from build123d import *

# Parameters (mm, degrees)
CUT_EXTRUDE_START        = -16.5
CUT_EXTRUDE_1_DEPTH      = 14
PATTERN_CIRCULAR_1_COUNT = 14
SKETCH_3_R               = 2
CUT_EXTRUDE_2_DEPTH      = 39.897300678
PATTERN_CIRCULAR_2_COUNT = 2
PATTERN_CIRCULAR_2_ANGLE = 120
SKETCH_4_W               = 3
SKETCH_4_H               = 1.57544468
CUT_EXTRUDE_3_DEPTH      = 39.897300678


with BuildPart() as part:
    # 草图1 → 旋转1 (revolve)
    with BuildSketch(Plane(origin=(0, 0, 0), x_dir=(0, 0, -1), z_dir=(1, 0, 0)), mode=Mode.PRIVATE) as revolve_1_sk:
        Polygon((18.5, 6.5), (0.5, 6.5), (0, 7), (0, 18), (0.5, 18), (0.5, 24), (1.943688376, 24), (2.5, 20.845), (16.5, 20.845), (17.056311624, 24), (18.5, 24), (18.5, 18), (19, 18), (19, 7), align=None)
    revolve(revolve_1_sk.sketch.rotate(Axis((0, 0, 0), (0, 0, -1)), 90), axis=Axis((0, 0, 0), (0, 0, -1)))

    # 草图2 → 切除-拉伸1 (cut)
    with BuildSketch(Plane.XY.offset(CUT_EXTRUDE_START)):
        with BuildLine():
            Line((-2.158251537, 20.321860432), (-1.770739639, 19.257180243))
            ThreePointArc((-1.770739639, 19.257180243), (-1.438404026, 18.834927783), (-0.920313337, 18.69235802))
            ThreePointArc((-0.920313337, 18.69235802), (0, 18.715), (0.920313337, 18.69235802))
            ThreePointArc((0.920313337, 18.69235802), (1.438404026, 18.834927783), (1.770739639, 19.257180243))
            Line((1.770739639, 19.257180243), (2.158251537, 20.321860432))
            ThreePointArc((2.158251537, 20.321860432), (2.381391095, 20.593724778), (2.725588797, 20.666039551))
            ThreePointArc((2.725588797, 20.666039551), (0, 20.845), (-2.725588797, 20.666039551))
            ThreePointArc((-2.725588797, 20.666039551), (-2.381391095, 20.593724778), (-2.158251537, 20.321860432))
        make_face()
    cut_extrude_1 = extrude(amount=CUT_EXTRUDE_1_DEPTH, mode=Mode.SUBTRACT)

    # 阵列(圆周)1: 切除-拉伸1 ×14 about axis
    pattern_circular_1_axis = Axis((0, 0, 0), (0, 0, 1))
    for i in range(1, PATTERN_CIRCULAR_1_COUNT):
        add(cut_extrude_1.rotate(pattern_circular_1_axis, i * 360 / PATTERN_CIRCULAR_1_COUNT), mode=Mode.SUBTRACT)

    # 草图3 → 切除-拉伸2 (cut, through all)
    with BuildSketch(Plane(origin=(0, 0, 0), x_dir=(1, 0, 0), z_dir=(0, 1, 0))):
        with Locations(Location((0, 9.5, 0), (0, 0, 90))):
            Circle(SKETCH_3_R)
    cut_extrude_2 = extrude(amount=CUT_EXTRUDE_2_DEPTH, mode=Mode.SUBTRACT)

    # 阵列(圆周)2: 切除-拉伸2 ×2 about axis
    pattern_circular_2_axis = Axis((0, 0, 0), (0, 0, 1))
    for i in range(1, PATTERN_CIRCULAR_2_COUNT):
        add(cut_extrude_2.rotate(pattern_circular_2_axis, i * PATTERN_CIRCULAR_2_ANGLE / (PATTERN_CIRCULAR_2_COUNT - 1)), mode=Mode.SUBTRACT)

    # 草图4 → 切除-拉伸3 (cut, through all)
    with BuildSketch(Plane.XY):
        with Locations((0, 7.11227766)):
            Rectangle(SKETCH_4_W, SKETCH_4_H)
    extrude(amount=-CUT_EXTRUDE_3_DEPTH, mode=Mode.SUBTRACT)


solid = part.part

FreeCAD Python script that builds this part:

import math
import FreeCAD as App
import Part
import Sketcher

V = App.Vector
Q = App.Units.Quantity


def add_polygon(sketch, points):
    """Adds a closed chain of lines whose ends are joined by coincident constraints."""
    first, n = sketch.GeometryCount, len(points)
    for a, b in zip(points, points[1:] + points[:1]):
        sketch.addGeometry(Part.LineSegment(App.Vector(*a, 0), App.Vector(*b, 0)), False)
    for i in range(n):
        sketch.addConstraint(Sketcher.Constraint("Coincident", first + i, 2, first + (i + 1) % n, 1))

doc = App.newDocument("Part")
body = doc.addObject("PartDesign::Body", "Body")

# Sketch on YZ plane
sketch1 = body.newObject("Sketcher::SketchObject", "Sketch")
sketch1.AttachmentSupport = (doc.getObject("YZ_Plane"), [""])
sketch1.MapMode = "FlatFace"
add_polygon(sketch1, [(6.5, -0.5), (6.5, -18.5), (7, -19), (18, -19), (18, -18.5), (24, -18.5), (24, -17.1), (20.8, -16.5), (20.8, -2.5), (24, -1.9), (24, -0.5), (18, -0.5), (18, 0), (7, 0)])  # lines 0-13
sketch1.addConstraint(Sketcher.Constraint("Vertical", 0))
sketch1.addConstraint(Sketcher.Constraint("Horizontal", 2))
sketch1.addConstraint(Sketcher.Constraint("Vertical", 3))
sketch1.addConstraint(Sketcher.Constraint("Horizontal", 4))
sketch1.addConstraint(Sketcher.Constraint("Vertical", 5))
sketch1.addConstraint(Sketcher.Constraint("Vertical", 7))
sketch1.addConstraint(Sketcher.Constraint("Vertical", 9))
sketch1.addConstraint(Sketcher.Constraint("Horizontal", 10))
sketch1.addConstraint(Sketcher.Constraint("Vertical", 11))
sketch1.addConstraint(Sketcher.Constraint("Horizontal", 12))
sketch1.addConstraint(Sketcher.Constraint("PointOnObject", 11, 2, -1))
sketch1.addConstraint(Sketcher.Constraint("Perpendicular", 1, 13))
sketch1.addConstraint(Sketcher.Constraint("Horizontal", 0, 2, 3, 2))
sketch1.addConstraint(Sketcher.Constraint("Horizontal", 10, 2, 13, 2))
sketch1.addConstraint(Sketcher.Constraint("Vertical", 5, 2, 8, 2))
sketch1.addConstraint(Sketcher.Constraint("Vertical", 3, 2, 10, 2))
sketch1.addConstraint(Sketcher.Constraint("Vertical", 1, 2, 12, 2))
sketch1.addConstraint(Sketcher.Constraint("Equal", 5, 9))
sketch1.addConstraint(Sketcher.Constraint("Equal", 3, 11))
sketch1.addConstraint(Sketcher.Constraint("Equal", 6, 8))
sketch1.addConstraint(Sketcher.Constraint("DistanceX", 2, 1, 2, 2, Q("11 mm")))
sketch1.addConstraint(Sketcher.Constraint("DistanceX", 4, 1, 4, 2, Q("6 mm")))
sketch1.addConstraint(Sketcher.Constraint("DistanceY", 0, 2, 0, 1, Q("18 mm")))
sketch1.addConstraint(Sketcher.Constraint("DistanceY", 7, 1, 7, 2, Q("14 mm")))
sketch1.addConstraint(Sketcher.Constraint("Angle", 6, Q("170 deg")))
sketch1.addConstraint(Sketcher.Constraint("DistanceY", 3, 1, 3, 2, Q("0.5 mm")))
sketch1.addConstraint(Sketcher.Constraint("DistanceX", -1, 1, 1, 2, Q("7 mm")))
sketch1.addConstraint(Sketcher.Constraint("DistanceX", -1, 1, 6, 2, Q("20.845 mm")))
revolution = body.newObject("PartDesign::Revolution", "Revolution")
revolution.Profile = sketch1
revolution.ReferenceAxis = (sketch1, ["V_Axis"])
revolution.Angle = 360

# Sketch on XY plane
sketch2 = body.newObject("Sketcher::SketchObject", "Sketch001")
sketch2.AttachmentSupport = (doc.getObject("XY_Plane"), [""])
sketch2.MapMode = "FlatFace"
sketch2.AttachmentOffset = App.Placement(V(0, 0, -16.5), App.Rotation())
sketch2.addGeometry(Part.LineSegment(V(-2.2, 20.3, 0), V(-1.8, 19.3, 0)), False)
sketch2.addGeometry(Part.ArcOfCircle(Part.Circle(V(-1, 19.6, 0), V(0, 0, 1), 0.9), math.radians(-160), math.radians(-87)), False)
sketch2.addGeometry(Part.ArcOfCircle(Part.Circle(V(0, 0, 0), V(0, 0, 1), 18.7), math.radians(87.18), math.radians(92.82)), False)
sketch2.addGeometry(Part.ArcOfCircle(Part.Circle(V(1, 19.6, 0), V(0, 0, 1), 0.9), math.radians(-93), math.radians(-20)), False)
sketch2.addGeometry(Part.LineSegment(V(1.8, 19.3, 0), V(2.2, 20.3, 0)), False)
sketch2.addGeometry(Part.ArcOfCircle(Part.Circle(V(2.7, 20.1, 0), V(0, 0, 1), 0.5), math.radians(82), math.radians(160)), False)
sketch2.addGeometry(Part.ArcOfCircle(Part.Circle(V(0, 0, 0), V(0, 0, 1), 20.8), math.radians(82.49), math.radians(97.51)), False)
sketch2.addGeometry(Part.ArcOfCircle(Part.Circle(V(-2.7, 20.1, 0), V(0, 0, 1), 0.5), math.radians(20), math.radians(98)), False)
sketch2.addConstraint(Sketcher.Constraint("Tangent", 0, 2, 1, 1))
sketch2.addConstraint(Sketcher.Constraint("Tangent", 1, 2, 2, 2))
sketch2.addConstraint(Sketcher.Constraint("Tangent", 2, 1, 3, 1))
sketch2.addConstraint(Sketcher.Constraint("Tangent", 3, 2, 4, 1))
sketch2.addConstraint(Sketcher.Constraint("Tangent", 4, 2, 5, 2))
sketch2.addConstraint(Sketcher.Constraint("Tangent", 5, 1, 6, 1))
sketch2.addConstraint(Sketcher.Constraint("Tangent", 6, 2, 7, 2))
sketch2.addConstraint(Sketcher.Constraint("Tangent", 7, 1, 0, 1))
sketch2.addConstraint(Sketcher.Constraint("Coincident", 2, 3, -1, 1))
sketch2.addConstraint(Sketcher.Constraint("Coincident", 6, 3, -1, 1))
sketch2.addConstraint(Sketcher.Constraint("Equal", 1, 3))
sketch2.addConstraint(Sketcher.Constraint("Equal", 5, 7))
sketch2.addConstraint(Sketcher.Constraint("Symmetric", 0, 2, 3, 2, -2))
sketch2.addConstraint(Sketcher.Constraint("Angle", 0, Q("-70 deg")))
sketch2.addConstraint(Sketcher.Constraint("Radius", 1, Q("0.86 mm")))
sketch2.addConstraint(Sketcher.Constraint("Radius", 5, Q("0.53 mm")))
sketch2.addConstraint(Sketcher.Constraint("Radius", 2, Q("18.715 mm")))
sketch2.addConstraint(Sketcher.Constraint("Radius", 6, Q("20.845 mm")))
sketch2.addConstraint(Sketcher.Constraint("DistanceX", 1, 2, 5, 3, Q("3.576602 mm")))
pocket1 = body.newObject("PartDesign::Pocket", "Pocket")
pocket1.Profile = sketch2
pocket1.Length = 14
pocket1.Reversed = True
doc.recompute()

polarpattern = body.newObject("PartDesign::PolarPattern", "PolarPattern")
polarpattern.Originals = [pocket1]
polarpattern.Axis = (doc.getObject("Z_Axis"), [""])
polarpattern.Angle = 360
polarpattern.Occurrences = 14
body.Tip = polarpattern

# Sketch on XZ plane
sketch3 = body.newObject("Sketcher::SketchObject", "Sketch002")
sketch3.AttachmentSupport = (doc.getObject("XZ_Plane"), [""])
sketch3.MapMode = "FlatFace"
sketch3.addGeometry(Part.Circle(V(0, -9.5, 0), V(0, 0, 1), 2), False)
sketch3.addConstraint(Sketcher.Constraint("PointOnObject", 0, 3, -2))
sketch3.addConstraint(Sketcher.Constraint("Diameter", 0, Q("4 mm")))
sketch3.addConstraint(Sketcher.Constraint("DistanceY", 0, 3, -1, 1, Q("9.5 mm")))
pocket2 = body.newObject("PartDesign::Pocket", "Pocket001")
pocket2.Profile = sketch3
pocket2.Type = "ThroughAll"
doc.recompute()

polarpattern2 = body.newObject("PartDesign::PolarPattern", "PolarPattern001")
polarpattern2.Originals = [pocket2]
polarpattern2.Axis = (doc.getObject("Z_Axis"), [""])
polarpattern2.Angle = 120
polarpattern2.Occurrences = 2
body.Tip = polarpattern2

# Sketch on XY plane
sketch4 = body.newObject("Sketcher::SketchObject", "Sketch003")
sketch4.AttachmentSupport = (doc.getObject("XY_Plane"), [""])
sketch4.MapMode = "FlatFace"
add_polygon(sketch4, [(-1.5, 7.9), (-1.5, 6.3), (1.5, 6.3), (1.5, 7.9)])  # lines 0-3
sketch4.addConstraint(Sketcher.Constraint("Vertical", 0))
sketch4.addConstraint(Sketcher.Constraint("Horizontal", 1))
sketch4.addConstraint(Sketcher.Constraint("Vertical", 2))
sketch4.addConstraint(Sketcher.Constraint("Horizontal", 3))
sketch4.addConstraint(Sketcher.Constraint("DistanceX", 1, 1, 1, 2, Q("3 mm")))
sketch4.addConstraint(Sketcher.Constraint("DistanceX", 0, 2, -1, 1, Q("1.5 mm")))
sketch4.addConstraint(Sketcher.Constraint("DistanceY", -1, 1, 2, 2, Q("7.9 mm")))
sketch4.addConstraint(Sketcher.Constraint("DistanceY", 0, 2, 0, 1, Q("1.575445 mm")))
pocket3 = body.newObject("PartDesign::Pocket", "Pocket002")
pocket3.Profile = sketch4
pocket3.Type = "ThroughAll"

doc.recompute()
